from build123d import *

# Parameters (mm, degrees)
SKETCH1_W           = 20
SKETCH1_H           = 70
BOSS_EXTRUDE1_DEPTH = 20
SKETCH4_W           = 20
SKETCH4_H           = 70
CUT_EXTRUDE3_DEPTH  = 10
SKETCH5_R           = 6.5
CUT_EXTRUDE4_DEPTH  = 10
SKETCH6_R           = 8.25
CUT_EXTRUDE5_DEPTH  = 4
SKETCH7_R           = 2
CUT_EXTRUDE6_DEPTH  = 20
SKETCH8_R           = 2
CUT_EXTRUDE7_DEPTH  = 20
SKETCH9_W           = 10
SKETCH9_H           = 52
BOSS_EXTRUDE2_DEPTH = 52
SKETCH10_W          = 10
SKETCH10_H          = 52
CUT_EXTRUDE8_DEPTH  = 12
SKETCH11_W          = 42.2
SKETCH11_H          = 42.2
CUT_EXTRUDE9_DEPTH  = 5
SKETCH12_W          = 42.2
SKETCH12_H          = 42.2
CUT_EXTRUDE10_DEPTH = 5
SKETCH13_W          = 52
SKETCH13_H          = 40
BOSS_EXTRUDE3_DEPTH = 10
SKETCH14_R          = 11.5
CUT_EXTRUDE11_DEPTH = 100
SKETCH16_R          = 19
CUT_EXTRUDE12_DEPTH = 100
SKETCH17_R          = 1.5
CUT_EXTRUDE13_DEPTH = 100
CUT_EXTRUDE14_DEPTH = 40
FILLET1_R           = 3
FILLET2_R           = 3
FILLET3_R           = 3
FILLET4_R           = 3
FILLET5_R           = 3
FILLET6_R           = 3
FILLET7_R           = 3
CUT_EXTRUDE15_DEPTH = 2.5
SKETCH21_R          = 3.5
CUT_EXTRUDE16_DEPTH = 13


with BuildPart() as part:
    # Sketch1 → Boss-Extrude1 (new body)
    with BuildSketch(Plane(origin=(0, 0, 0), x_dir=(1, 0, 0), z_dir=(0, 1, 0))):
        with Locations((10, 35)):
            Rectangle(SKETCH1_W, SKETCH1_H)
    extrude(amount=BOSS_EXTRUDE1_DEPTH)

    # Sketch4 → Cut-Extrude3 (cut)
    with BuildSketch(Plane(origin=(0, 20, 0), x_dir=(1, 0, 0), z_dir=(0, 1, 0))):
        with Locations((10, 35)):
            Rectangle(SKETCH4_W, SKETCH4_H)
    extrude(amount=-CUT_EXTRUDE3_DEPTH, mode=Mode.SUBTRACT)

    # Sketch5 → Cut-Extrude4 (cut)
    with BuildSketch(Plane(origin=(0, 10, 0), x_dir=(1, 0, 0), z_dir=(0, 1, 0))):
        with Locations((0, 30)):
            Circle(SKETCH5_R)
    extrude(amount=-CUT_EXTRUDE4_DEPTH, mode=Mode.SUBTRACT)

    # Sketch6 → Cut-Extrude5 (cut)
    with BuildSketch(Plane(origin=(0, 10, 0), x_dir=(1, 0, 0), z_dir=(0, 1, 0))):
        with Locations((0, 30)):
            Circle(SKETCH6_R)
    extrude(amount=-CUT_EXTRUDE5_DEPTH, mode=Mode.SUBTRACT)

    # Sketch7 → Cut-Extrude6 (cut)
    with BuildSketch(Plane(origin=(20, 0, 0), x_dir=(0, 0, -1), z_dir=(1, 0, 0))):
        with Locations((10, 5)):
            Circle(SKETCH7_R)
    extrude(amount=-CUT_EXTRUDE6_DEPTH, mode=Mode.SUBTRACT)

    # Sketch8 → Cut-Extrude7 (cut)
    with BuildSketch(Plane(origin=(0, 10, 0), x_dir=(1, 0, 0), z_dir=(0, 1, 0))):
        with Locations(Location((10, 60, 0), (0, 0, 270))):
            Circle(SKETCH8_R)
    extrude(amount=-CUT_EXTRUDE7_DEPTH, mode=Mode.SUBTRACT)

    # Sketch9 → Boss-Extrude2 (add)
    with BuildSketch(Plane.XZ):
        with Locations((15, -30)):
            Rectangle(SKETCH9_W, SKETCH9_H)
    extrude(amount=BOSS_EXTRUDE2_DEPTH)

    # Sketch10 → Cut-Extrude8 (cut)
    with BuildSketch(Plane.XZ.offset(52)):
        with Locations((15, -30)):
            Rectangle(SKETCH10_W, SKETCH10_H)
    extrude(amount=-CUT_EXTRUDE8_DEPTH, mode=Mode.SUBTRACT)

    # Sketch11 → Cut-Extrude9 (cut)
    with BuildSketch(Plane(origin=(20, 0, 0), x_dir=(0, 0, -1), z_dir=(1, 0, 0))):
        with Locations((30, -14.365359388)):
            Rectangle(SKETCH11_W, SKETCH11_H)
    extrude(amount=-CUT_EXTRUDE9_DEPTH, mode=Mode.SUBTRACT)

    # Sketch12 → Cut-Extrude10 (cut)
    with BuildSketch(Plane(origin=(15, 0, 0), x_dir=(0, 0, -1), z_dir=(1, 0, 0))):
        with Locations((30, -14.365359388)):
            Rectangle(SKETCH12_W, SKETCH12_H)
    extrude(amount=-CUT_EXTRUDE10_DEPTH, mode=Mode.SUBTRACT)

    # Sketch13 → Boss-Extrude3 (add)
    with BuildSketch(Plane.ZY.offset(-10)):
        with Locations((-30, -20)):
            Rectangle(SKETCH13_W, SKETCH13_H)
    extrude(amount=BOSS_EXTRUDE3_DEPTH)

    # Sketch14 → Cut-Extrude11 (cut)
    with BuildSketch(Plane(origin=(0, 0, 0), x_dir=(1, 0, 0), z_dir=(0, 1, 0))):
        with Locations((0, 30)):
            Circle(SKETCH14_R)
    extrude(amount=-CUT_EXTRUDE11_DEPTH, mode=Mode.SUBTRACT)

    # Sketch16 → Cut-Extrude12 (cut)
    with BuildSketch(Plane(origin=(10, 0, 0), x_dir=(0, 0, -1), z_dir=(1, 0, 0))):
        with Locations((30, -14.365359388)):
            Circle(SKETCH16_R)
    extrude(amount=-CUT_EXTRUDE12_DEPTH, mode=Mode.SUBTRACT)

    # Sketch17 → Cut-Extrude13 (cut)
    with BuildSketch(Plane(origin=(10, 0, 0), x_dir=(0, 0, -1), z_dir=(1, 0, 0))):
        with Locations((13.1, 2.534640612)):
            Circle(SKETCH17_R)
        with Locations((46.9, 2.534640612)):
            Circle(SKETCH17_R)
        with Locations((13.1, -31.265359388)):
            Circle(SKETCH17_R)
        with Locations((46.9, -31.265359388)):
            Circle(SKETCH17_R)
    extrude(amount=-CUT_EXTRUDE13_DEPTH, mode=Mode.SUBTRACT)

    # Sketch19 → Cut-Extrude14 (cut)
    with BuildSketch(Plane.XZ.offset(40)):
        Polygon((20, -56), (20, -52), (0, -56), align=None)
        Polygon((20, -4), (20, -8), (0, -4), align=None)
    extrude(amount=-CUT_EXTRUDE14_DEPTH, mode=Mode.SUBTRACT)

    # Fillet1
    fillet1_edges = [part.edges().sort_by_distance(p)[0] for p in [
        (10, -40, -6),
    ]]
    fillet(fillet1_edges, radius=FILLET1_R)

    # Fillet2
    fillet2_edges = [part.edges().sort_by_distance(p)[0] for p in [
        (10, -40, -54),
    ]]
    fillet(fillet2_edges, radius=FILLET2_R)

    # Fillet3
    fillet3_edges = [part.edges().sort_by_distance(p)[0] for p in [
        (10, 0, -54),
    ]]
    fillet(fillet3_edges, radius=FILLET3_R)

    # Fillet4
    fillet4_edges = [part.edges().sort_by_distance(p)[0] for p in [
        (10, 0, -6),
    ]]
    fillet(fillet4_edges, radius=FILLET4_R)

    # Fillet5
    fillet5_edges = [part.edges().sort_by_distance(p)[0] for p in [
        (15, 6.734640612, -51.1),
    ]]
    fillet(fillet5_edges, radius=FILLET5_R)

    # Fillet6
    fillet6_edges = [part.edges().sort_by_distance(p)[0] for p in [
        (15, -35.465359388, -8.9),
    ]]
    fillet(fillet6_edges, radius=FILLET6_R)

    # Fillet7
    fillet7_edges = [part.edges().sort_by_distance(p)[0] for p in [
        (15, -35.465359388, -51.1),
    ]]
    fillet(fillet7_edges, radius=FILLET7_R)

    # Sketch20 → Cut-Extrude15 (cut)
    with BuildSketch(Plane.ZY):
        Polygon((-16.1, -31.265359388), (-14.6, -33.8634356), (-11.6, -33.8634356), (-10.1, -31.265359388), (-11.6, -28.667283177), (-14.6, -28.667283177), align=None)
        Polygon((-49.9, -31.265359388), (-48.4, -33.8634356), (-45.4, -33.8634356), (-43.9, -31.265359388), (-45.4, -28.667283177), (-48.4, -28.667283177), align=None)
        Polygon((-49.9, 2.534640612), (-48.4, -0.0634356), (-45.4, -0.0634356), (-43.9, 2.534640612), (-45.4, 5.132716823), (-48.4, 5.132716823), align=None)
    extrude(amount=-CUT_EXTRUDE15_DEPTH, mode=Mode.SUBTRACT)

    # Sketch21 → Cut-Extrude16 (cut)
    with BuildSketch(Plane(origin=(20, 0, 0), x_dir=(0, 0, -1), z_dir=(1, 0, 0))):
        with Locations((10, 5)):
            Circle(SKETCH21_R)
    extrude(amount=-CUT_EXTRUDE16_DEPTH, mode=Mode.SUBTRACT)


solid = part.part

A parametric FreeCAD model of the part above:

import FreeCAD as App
import Part
import Sketcher

V = App.Vector
Q = App.Units.Quantity


def edges_at(feature, points):
    """Names of the edges that pass closest to the given points."""
    edges = feature.Shape.Edges
    near = lambda p: min(range(len(edges)), key=lambda i: edges[i].distToShape(Part.Vertex(*p))[0])
    return sorted({f"Edge{near(p) + 1}" for p in points})


def add_polygon(sketch, points):
    """Adds a closed chain of lines whose ends are joined by coincident constraints."""
    first, n = sketch.GeometryCount, len(points)
    for a, b in zip(points, points[1:] + points[:1]):
        sketch.addGeometry(Part.LineSegment(App.Vector(*a, 0), App.Vector(*b, 0)), False)
    for i in range(n):
        sketch.addConstraint(Sketcher.Constraint("Coincident", first + i, 2, first + (i + 1) % n, 1))

doc = App.newDocument("Part")
body = doc.addObject("PartDesign::Body", "Body")

sketch1 = body.newObject("Sketcher::SketchObject", "Sketch")
sketch1.AttachmentSupport = (doc.getObject("XZ_Plane"), [""])
sketch1.MapMode = "FlatFace"
add_polygon(sketch1, [(0, -70), (0, 0), (20, 0), (20, -70)])
sketch1.addConstraint([
    Sketcher.Constraint("Vertical", 0),
    Sketcher.Constraint("Horizontal", 1),
    Sketcher.Constraint("Vertical", 2),
    Sketcher.Constraint("Horizontal", 3),
    Sketcher.Constraint("Coincident", 0, 2, -1, 1),
    Sketcher.Constraint("DistanceX", 1, 1, 1, 2, Q("20 mm")),
    Sketcher.Constraint("DistanceY", 0, 1, 0, 2, Q("70 mm")),
])
pad1 = body.newObject("PartDesign::Pad", "Pad")
pad1.Profile = sketch1
pad1.Length = 20
pad1.Reversed = True

sketch2 = body.newObject("Sketcher::SketchObject", "Sketch001")
sketch2.AttachmentSupport = (doc.getObject("XZ_Plane"), [""])
sketch2.MapMode = "FlatFace"
sketch2.AttachmentOffset = App.Placement(V(0, 0, -20), App.Rotation())
add_polygon(sketch2, [(0, -70), (0, 0), (20, 0), (20, -70)])
sketch2.addConstraint([
    Sketcher.Constraint("Vertical", 0),
    Sketcher.Constraint("Horizontal", 1),
    Sketcher.Constraint("Vertical", 2),
    Sketcher.Constraint("Horizontal", 3),
    Sketcher.Constraint("Coincident", 0, 2, -1, 1),
    Sketcher.Constraint("DistanceX", 1, 1, 1, 2, Q("20 mm")),
    Sketcher.Constraint("DistanceY", 0, 1, 0, 2, Q("70 mm")),
])
pocket1 = body.newObject("PartDesign::Pocket", "Pocket")
pocket1.Profile = sketch2
pocket1.Length = 10
pocket1.Reversed = True

sketch3 = body.newObject("Sketcher::SketchObject", "Sketch002")
sketch3.AttachmentSupport = (doc.getObject("XZ_Plane"), [""])
sketch3.MapMode = "FlatFace"
sketch3.AttachmentOffset = App.Placement(V(0, 0, -10), App.Rotation())
sketch3.addGeometry(Part.Circle(V(0, -30, 0), V(0, 0, 1), 6), False)
sketch3.addConstraint([
    Sketcher.Constraint("PointOnObject", 0, 3, -2),
    Sketcher.Constraint("Diameter", 0, Q("13 mm")),
    Sketcher.Constraint("DistanceY", 0, 3, -1, 1, Q("30 mm")),
])
pocket2 = body.newObject("PartDesign::Pocket", "Pocket001")
pocket2.Profile = sketch3
pocket2.Length = 10
pocket2.Reversed = True

sketch4 = body.newObject("Sketcher::SketchObject", "Sketch003")
sketch4.AttachmentSupport = (doc.getObject("XZ_Plane"), [""])
sketch4.MapMode = "FlatFace"
sketch4.AttachmentOffset = App.Placement(V(0, 0, -10), App.Rotation())
sketch4.addGeometry(Part.Circle(V(0, -30, 0), V(0, 0, 1), 8), False)
sketch4.addConstraint([
    Sketcher.Constraint("PointOnObject", 0, 3, -2),
    Sketcher.Constraint("Diameter", 0, Q("16.5 mm")),
    Sketcher.Constraint("DistanceY", 0, 3, -1, 1, Q("30 mm")),
])
pocket3 = body.newObject("PartDesign::Pocket", "Pocket002")
pocket3.Profile = sketch4
pocket3.Length = 4
pocket3.Reversed = True

sketch5 = body.newObject("Sketcher::SketchObject", "Sketch004")
sketch5.AttachmentSupport = (doc.getObject("YZ_Plane"), [""])
sketch5.MapMode = "FlatFace"
sketch5.AttachmentOffset = App.Placement(V(0, 0, 20), App.Rotation())
sketch5.addGeometry(Part.Circle(V(5, -10, 0), V(0, 0, 1), 2), False)
sketch5.addConstraint([
    Sketcher.Constraint("Diameter", 0, Q("4 mm")),
    Sketcher.Constraint("DistanceX", -1, 1, 0, 3, Q("5 mm")),
    Sketcher.Constraint("DistanceY", 0, 3, -1, 1, Q("10 mm")),
])
pocket4 = body.newObject("PartDesign::Pocket", "Pocket003")
pocket4.Profile = sketch5
pocket4.Length = 20

sketch6 = body.newObject("Sketcher::SketchObject", "Sketch005")
sketch6.AttachmentSupport = (doc.getObject("XZ_Plane"), [""])
sketch6.MapMode = "FlatFace"
sketch6.AttachmentOffset = App.Placement(V(0, 0, -10), App.Rotation())
sketch6.addGeometry(Part.Circle(V(10, -60, 0), V(0, 0, 1), 2), False)
sketch6.addConstraint([
    Sketcher.Constraint("Diameter", 0, Q("4 mm")),
    Sketcher.Constraint("DistanceX", -1, 1, 0, 3, Q("10 mm")),
    Sketcher.Constraint("DistanceY", 0, 3, -1, 1, Q("60 mm")),
])
pocket5 = body.newObject("PartDesign::Pocket", "Pocket004")
pocket5.Profile = sketch6
pocket5.Length = 20
pocket5.Reversed = True

sketch7 = body.newObject("Sketcher::SketchObject", "Sketch006")
sketch7.AttachmentSupport = (doc.getObject("XZ_Plane"), [""])
sketch7.MapMode = "FlatFace"
add_polygon(sketch7, [(10, -4), (10, -56), (20, -56), (20, -4)])
sketch7.addConstraint([
    Sketcher.Constraint("Vertical", 0),
    Sketcher.Constraint("Horizontal", 1),
    Sketcher.Constraint("Vertical", 2),
    Sketcher.Constraint("Horizontal", 3),
    Sketcher.Constraint("DistanceX", 1, 1, 1, 2, Q("10 mm")),
    Sketcher.Constraint("DistanceY", 0, 2, 0, 1, Q("52 mm")),
    Sketcher.Constraint("DistanceX", -1, 1, 0, 2, Q("10 mm")),
    Sketcher.Constraint("DistanceY", 0, 2, -1, 1, Q("56 mm")),
])
pad2 = body.newObject("PartDesign::Pad", "Pad001")
pad2.Profile = sketch7
pad2.Length = 52

sketch8 = body.newObject("Sketcher::SketchObject", "Sketch007")
sketch8.AttachmentSupport = (doc.getObject("XZ_Plane"), [""])
sketch8.MapMode = "FlatFace"
sketch8.AttachmentOffset = App.Placement(V(0, 0, 52), App.Rotation())
add_polygon(sketch8, [(10, -4), (10, -56), (20, -56), (20, -4)])
sketch8.addConstraint([
    Sketcher.Constraint("Vertical", 0),
    Sketcher.Constraint("Horizontal", 1),
    Sketcher.Constraint("Vertical", 2),
    Sketcher.Constraint("Horizontal", 3),
    Sketcher.Constraint("DistanceX", 1, 1, 1, 2, Q("10 mm")),
    Sketcher.Constraint("DistanceY", 0, 2, 0, 1, Q("52 mm")),
    Sketcher.Constraint("DistanceX", -1, 1, 0, 2, Q("10 mm")),
    Sketcher.Constraint("DistanceY", 0, 2, -1, 1, Q("56 mm")),
])
pocket6 = body.newObject("PartDesign::Pocket", "Pocket005")
pocket6.Profile = sketch8
pocket6.Length = 12

sketch9 = body.newObject("Sketcher::SketchObject", "Sketch008")
sketch9.AttachmentSupport = (doc.getObject("YZ_Plane"), [""])
sketch9.MapMode = "FlatFace"
sketch9.AttachmentOffset = App.Placement(V(0, 0, 20), App.Rotation())
add_polygon(sketch9, [(7, -9), (-35, -9), (-35, -51), (7, -51)])
sketch9.addConstraint([
    Sketcher.Constraint("Horizontal", 0),
    Sketcher.Constraint("Vertical", 1),
    Sketcher.Constraint("Horizontal", 2),
    Sketcher.Constraint("Vertical", 3),
    Sketcher.Constraint("Equal", 2, 1),
    Sketcher.Constraint("DistanceX", 0, 2, 0, 1, Q("42.2 mm")),
    Sketcher.Constraint("DistanceY", 0, 2, -1, 1, Q("8.9 mm")),
    Sketcher.Constraint("DistanceX", 0, 2, -1, 1, Q("35.465359 mm")),
])
pocket7 = body.newObject("PartDesign::Pocket", "Pocket006")
pocket7.Profile = sketch9
pocket7.Length = 5

sketch10 = body.newObject("Sketcher::SketchObject", "Sketch009")
sketch10.AttachmentSupport = (doc.getObject("YZ_Plane"), [""])
sketch10.MapMode = "FlatFace"
sketch10.AttachmentOffset = App.Placement(V(0, 0, 15), App.Rotation())
add_polygon(sketch10, [(7, -9), (-35, -9), (-35, -51), (7, -51)])
sketch10.addConstraint([
    Sketcher.Constraint("Horizontal", 0),
    Sketcher.Constraint("Vertical", 1),
    Sketcher.Constraint("Horizontal", 2),
    Sketcher.Constraint("Vertical", 3),
    Sketcher.Constraint("Equal", 2, 1),
    Sketcher.Constraint("DistanceX", 0, 2, 0, 1, Q("42.2 mm")),
    Sketcher.Constraint("DistanceY", 0, 2, -1, 1, Q("8.9 mm")),
    Sketcher.Constraint("DistanceX", 0, 2, -1, 1, Q("35.465359 mm")),
])
pocket8 = body.newObject("PartDesign::Pocket", "Pocket007")
pocket8.Profile = sketch10
pocket8.Length = 5

sketch11 = body.newObject("Sketcher::SketchObject", "Sketch010")
sketch11.AttachmentSupport = (doc.getObject("YZ_Plane"), [""])
sketch11.MapMode = "FlatFace"
sketch11.AttachmentOffset = App.Placement(V(0, 0, 10), App.Rotation())
add_polygon(sketch11, [(0, -56), (-40, -56), (-40, -4), (0, -4)])
sketch11.addConstraint([
    Sketcher.Constraint("Horizontal", 0),
    Sketcher.Constraint("Vertical", 1),
    Sketcher.Constraint("Horizontal", 2),
    Sketcher.Constraint("Vertical", 3),
    Sketcher.Constraint("PointOnObject", 2, 2, -2),
    Sketcher.Constraint("DistanceX", 0, 2, 0, 1, Q("40 mm")),
    Sketcher.Constraint("DistanceY", 1, 1, 1, 2, Q("52 mm")),
    Sketcher.Constraint("DistanceY", 0, 2, -1, 1, Q("56 mm")),
])
pad3 = body.newObject("PartDesign::Pad", "Pad002")
pad3.Profile = sketch11
pad3.Length = 10
pad3.Reversed = True

sketch12 = body.newObject("Sketcher::SketchObject", "Sketch011")
sketch12.AttachmentSupport = (doc.getObject("XZ_Plane"), [""])
sketch12.MapMode = "FlatFace"
sketch12.addGeometry(Part.Circle(V(0, -30, 0), V(0, 0, 1), 12), False)
sketch12.addConstraint([
    Sketcher.Constraint("PointOnObject", 0, 3, -2),
    Sketcher.Constraint("Diameter", 0, Q("23 mm")),
    Sketcher.Constraint("DistanceY", 0, 3, -1, 1, Q("30 mm")),
])
pocket9 = body.newObject("PartDesign::Pocket", "Pocket008")
pocket9.Profile = sketch12
pocket9.Length = 100
pocket9.Reversed = True

sketch13 = body.newObject("Sketcher::SketchObject", "Sketch012")
sketch13.AttachmentSupport = (doc.getObject("YZ_Plane"), [""])
sketch13.MapMode = "FlatFace"
sketch13.AttachmentOffset = App.Placement(V(0, 0, 10), App.Rotation())
sketch13.addGeometry(Part.Circle(V(-14, -30, 0), V(0, 0, 1), 19), False)
sketch13.addConstraint([
    Sketcher.Constraint("Diameter", 0, Q("38 mm")),
    Sketcher.Constraint("DistanceY", 0, 3, -1, 1, Q("30 mm")),
    Sketcher.Constraint("DistanceX", 0, 3, -1, 1, Q("14.365359 mm")),
])
pocket10 = body.newObject("PartDesign::Pocket", "Pocket009")
pocket10.Profile = sketch13
pocket10.Length = 100

sketch14 = body.newObject("Sketcher::SketchObject", "Sketch013")
sketch14.AttachmentSupport = (doc.getObject("YZ_Plane"), [""])
sketch14.MapMode = "FlatFace"
sketch14.AttachmentOffset = App.Placement(V(0, 0, 10), App.Rotation())
sketch14.addGeometry([
    Part.Circle(V(2.5, -13.1, 0), V(0, 0, 1), 1.5),
    Part.Circle(V(2.5, -46.9, 0), V(0, 0, 1), 1.5),
    Part.Circle(V(-31.3, -13.1, 0), V(0, 0, 1), 1.5),
    Part.Circle(V(-31.3, -46.9, 0), V(0, 0, 1), 1.5),
], False)
sketch14.addConstraint([
    Sketcher.Constraint("Equal", 0, 1),
    Sketcher.Constraint("Equal", 1, 2),
    Sketcher.Constraint("Equal", 2, 3),
    Sketcher.Constraint("Horizontal", 0, 3, 2, 3),
    Sketcher.Constraint("Horizontal", 1, 3, 3, 3),
    Sketcher.Constraint("Vertical", 0, 3, 1, 3),
    Sketcher.Constraint("Vertical", 2, 3, 3, 3),
    Sketcher.Constraint("Diameter", 0, Q("3 mm")),
    Sketcher.Constraint("DistanceY", 0, 3, -1, 1, Q("13.1 mm")),
    Sketcher.Constraint("DistanceY", 1, 3, -1, 1, Q("46.9 mm")),
    Sketcher.Constraint("DistanceX", 2, 3, 0, 3, Q("33.8 mm")),
    Sketcher.Constraint("DistanceX", -1, 1, 0, 3, Q("2.534641 mm")),
])
pocket11 = body.newObject("PartDesign::Pocket", "Pocket010")
pocket11.Profile = sketch14
pocket11.Length = 100

sketch15 = body.newObject("Sketcher::SketchObject", "Sketch014")
sketch15.AttachmentSupport = (doc.getObject("XZ_Plane"), [""])
sketch15.MapMode = "FlatFace"
sketch15.AttachmentOffset = App.Placement(V(0, 0, 40), App.Rotation())
add_polygon(sketch15, [(20, -56), (20, -52), (0, -56)])
add_polygon(sketch15, [(20, -8), (20, -4), (0, -4)])
sketch15.addConstraint([
    Sketcher.Constraint("Vertical", 0),
    Sketcher.Constraint("Horizontal", 2),
    Sketcher.Constraint("Vertical", 3),
    Sketcher.Constraint("Horizontal", 4),
    Sketcher.Constraint("PointOnObject", 1, 2, -2),
    Sketcher.Constraint("PointOnObject", 4, 2, -2),
    Sketcher.Constraint("Vertical", 2, 2, 3, 2),
    Sketcher.Constraint("Equal", 0, 3),
    Sketcher.Constraint("DistanceX", 2, 1, 2, 2, Q("20 mm")),
    Sketcher.Constraint("DistanceY", 0, 1, 0, 2, Q("4 mm")),
    Sketcher.Constraint("DistanceY", 0, 2, -1, 1, Q("52 mm")),
    Sketcher.Constraint("DistanceY", 3, 2, -1, 1, Q("4 mm")),
])
pocket12 = body.newObject("PartDesign::Pocket", "Pocket011")
pocket12.Profile = sketch15
pocket12.Length = 40
doc.recompute()

fillet = body.newObject("PartDesign::Fillet", "Fillet")
fillet.Base = (pocket12, edges_at(pocket12, [(10, -40, -6)]))
fillet.Radius = 3
doc.recompute()

fillet2 = body.newObject("PartDesign::Fillet", "Fillet001")
fillet2.Base = (fillet, edges_at(fillet, [(10, -40, -54)]))
fillet2.Radius = 3
doc.recompute()

fillet3 = body.newObject("PartDesign::Fillet", "Fillet002")
fillet3.Base = (fillet2, edges_at(fillet2, [(10, 0, -54)]))
fillet3.Radius = 3
doc.recompute()

fillet4 = body.newObject("PartDesign::Fillet", "Fillet003")
fillet4.Base = (fillet3, edges_at(fillet3, [(10, 0, -6)]))
fillet4.Radius = 3
doc.recompute()

fillet5 = body.newObject("PartDesign::Fillet", "Fillet004")
fillet5.Base = (fillet4, edges_at(fillet4, [(15, 6.735, -51.1)]))
fillet5.Radius = 3
doc.recompute()

fillet6 = body.newObject("PartDesign::Fillet", "Fillet005")
fillet6.Base = (fillet5, edges_at(fillet5, [(15, -35.465, -8.9)]))
fillet6.Radius = 3
doc.recompute()

fillet7 = body.newObject("PartDesign::Fillet", "Fillet006")
fillet7.Base = (fillet6, edges_at(fillet6, [(15, -35.465, -51.1)]))
fillet7.Radius = 3

sketch16 = body.newObject("Sketcher::SketchObject", "Sketch015")
sketch16.AttachmentSupport = (doc.getObject("YZ_Plane"), [""])
sketch16.MapMode = "FlatFace"
add_polygon(sketch16, [(-31.3, -16.1), (-33.9, -14.6), (-33.9, -11.6), (-31.3, -10.1), (-28.7, -11.6), (-28.7, -14.6)])
add_polygon(sketch16, [(-31.3, -49.9), (-33.9, -48.4), (-33.9, -45.4), (-31.3, -43.9), (-28.7, -45.4), (-28.7, -48.4)])
add_polygon(sketch16, [(2.5, -49.9), (-0.1, -48.4), (-0.1, -45.4), (2.5, -43.9), (5.1, -45.4), (5.1, -48.4)])
sketch16.addConstraint([
    Sketcher.Constraint("Vertical", 1),
    Sketcher.Constraint("Vertical", 4),
    Sketcher.Constraint("Vertical", 7),
    Sketcher.Constraint("Vertical", 10),
    Sketcher.Constraint("Vertical", 13),
    Sketcher.Constraint("Vertical", 16),
    Sketcher.Constraint("Parallel", 0, 3),
    Sketcher.Constraint("Parallel", 2, 5),
    Sketcher.Constraint("Parallel", 3, 6),
    Sketcher.Constraint("Parallel", 5, 8),
    Sketcher.Constraint("Parallel", 6, 9),
    Sketcher.Constraint("Parallel", 8, 11),
    Sketcher.Constraint("Parallel", 9, 12),
    Sketcher.Constraint("Parallel", 11, 14),
    Sketcher.Constraint("Parallel", 12, 15),
    Sketcher.Constraint("Parallel", 14, 17),
    Sketcher.Constraint("Horizontal", 1, 2, 3, 2),
    Sketcher.Constraint("Horizontal", 0, 2, 4, 2),
    Sketcher.Constraint("Horizontal", 7, 2, 9, 2),
    Sketcher.Constraint("Horizontal", 6, 2, 10, 2),
    Sketcher.Constraint("Horizontal", 10, 2, 12, 2),
    Sketcher.Constraint("Horizontal", 9, 2, 13, 2),
    Sketcher.Constraint("Horizontal", 8, 2, 14, 2),
    Sketcher.Constraint("Horizontal", 13, 2, 15, 2),
    Sketcher.Constraint("Horizontal", 12, 2, 16, 2),
    Sketcher.Constraint("Vertical", 2, 2, 5, 2),
    Sketcher.Constraint("Vertical", 1, 2, 6, 2),
    Sketcher.Constraint("Vertical", 5, 2, 8, 2),
    Sketcher.Constraint("Equal", 4, 7),
    Sketcher.Constraint("DistanceY", 1, 1, 1, 2, Q("3 mm")),
    Sketcher.Constraint("Angle", 0, Q("150 deg")),
    Sketcher.Constraint("Distance", 0, Q("3 mm")),
    Sketcher.Constraint("DistanceY", 0, 2, -1, 1, Q("14.6 mm")),
    Sketcher.Constraint("DistanceY", 6, 2, -1, 1, Q("48.4 mm")),
    Sketcher.Constraint("DistanceX", 6, 2, 12, 2, Q("33.8 mm")),
    Sketcher.Constraint("DistanceX", 2, 2, -1, 1, Q("31.265359 mm")),
])
pocket13 = body.newObject("PartDesign::Pocket", "Pocket012")
pocket13.Profile = sketch16
pocket13.Length = 2.5
pocket13.Reversed = True

sketch17 = body.newObject("Sketcher::SketchObject", "Sketch016")
sketch17.AttachmentSupport = (doc.getObject("YZ_Plane"), [""])
sketch17.MapMode = "FlatFace"
sketch17.AttachmentOffset = App.Placement(V(0, 0, 20), App.Rotation())
sketch17.addGeometry(Part.Circle(V(5, -10, 0), V(0, 0, 1), 3.5), False)
sketch17.addConstraint([
    Sketcher.Constraint("Diameter", 0, Q("7 mm")),
    Sketcher.Constraint("DistanceX", -1, 1, 0, 3, Q("5 mm")),
    Sketcher.Constraint("DistanceY", 0, 3, -1, 1, Q("10 mm")),
])
pocket14 = body.newObject("PartDesign::Pocket", "Pocket013")
pocket14.Profile = sketch17
pocket14.Length = 13

doc.recompute()
